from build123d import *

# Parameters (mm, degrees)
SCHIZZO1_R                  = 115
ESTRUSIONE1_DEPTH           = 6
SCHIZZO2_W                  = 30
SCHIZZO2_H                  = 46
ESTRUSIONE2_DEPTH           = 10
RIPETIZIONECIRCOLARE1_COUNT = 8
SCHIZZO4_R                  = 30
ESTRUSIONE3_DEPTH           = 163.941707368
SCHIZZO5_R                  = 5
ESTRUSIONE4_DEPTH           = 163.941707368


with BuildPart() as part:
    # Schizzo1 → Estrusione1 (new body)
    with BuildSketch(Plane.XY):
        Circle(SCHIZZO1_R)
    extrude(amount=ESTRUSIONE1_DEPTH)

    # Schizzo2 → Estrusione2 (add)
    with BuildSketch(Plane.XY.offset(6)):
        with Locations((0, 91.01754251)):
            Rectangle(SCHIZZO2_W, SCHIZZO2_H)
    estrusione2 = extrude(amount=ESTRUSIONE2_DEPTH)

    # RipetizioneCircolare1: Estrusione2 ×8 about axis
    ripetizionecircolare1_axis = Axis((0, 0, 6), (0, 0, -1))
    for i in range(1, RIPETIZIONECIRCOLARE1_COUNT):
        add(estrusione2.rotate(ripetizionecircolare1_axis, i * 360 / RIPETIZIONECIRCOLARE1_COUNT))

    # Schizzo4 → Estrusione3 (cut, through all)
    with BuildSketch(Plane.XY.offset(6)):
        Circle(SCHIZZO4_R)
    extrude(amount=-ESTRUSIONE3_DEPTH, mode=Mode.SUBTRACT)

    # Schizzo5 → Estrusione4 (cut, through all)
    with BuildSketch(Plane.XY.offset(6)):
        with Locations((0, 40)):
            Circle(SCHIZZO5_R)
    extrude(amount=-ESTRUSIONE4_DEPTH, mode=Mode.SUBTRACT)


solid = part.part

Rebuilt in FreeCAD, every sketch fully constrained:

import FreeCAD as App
import Part
import Sketcher


def add_polygon(sketch, points):
    """Adds a closed chain of lines whose ends are joined by coincident constraints."""
    first, n = sketch.GeometryCount, len(points)
    for a, b in zip(points, points[1:] + points[:1]):
        sketch.addGeometry(Part.LineSegment(App.Vector(*a, 0), App.Vector(*b, 0)), False)
    for i in range(n):
        sketch.addConstraint(Sketcher.Constraint("Coincident", first + i, 2, first + (i + 1) % n, 1))

doc = App.newDocument("Part")
params = doc.addObject("Spreadsheet::Sheet", "Params")
for row, (alias, value) in enumerate([
    ("sketch1_diameter", "230 mm"),
    ("pad1_length", "6 mm"),
    ("sketch2_width", "30 mm"),
    ("sketch2_height", "46 mm"),
    ("pad2_length", "10 mm"),
    ("sketch3_diameter", "60 mm"),
    ("sketch4_diameter", "10 mm"),
], start=1):
    params.set(f"A{row}", alias)
    params.set(f"B{row}", "=" + value)
    params.setAlias(f"B{row}", alias)

body = doc.addObject("PartDesign::Body", "Body")

# Sketch on XY plane
sketch1 = doc.addObject("Sketcher::SketchObject", "Sketch")
body.addObject(sketch1)
sketch1.AttachmentSupport = (doc.XY_Plane, [""])
sketch1.MapMode = "FlatFace"
sketch1.addGeometry(Part.Circle(App.Vector(0, 0, 0), App.Vector(0, 0, 1), 115), False)
sketch1.addConstraint(Sketcher.Constraint("Coincident", 0, 3, -1, 1))
sketch1.addConstraint(Sketcher.Constraint("Diameter", 0, 230.0))
sketch1.setExpression("Constraints[1]", "Params.sketch1_diameter")
pad1 = doc.addObject("PartDesign::Pad", "Pad")
body.addObject(pad1)
pad1.Profile = sketch1
pad1.setExpression("Length", "Params.pad1_length")

# Sketch on XY plane
sketch2 = doc.addObject("Sketcher::SketchObject", "Sketch001")
body.addObject(sketch2)
sketch2.AttachmentSupport = (doc.XY_Plane, [""])
sketch2.MapMode = "FlatFace"
sketch2.AttachmentOffset = App.Placement(App.Vector(0, 0, 6), App.Rotation())
add_polygon(sketch2, [(-15, 114), (-15, 68), (15, 68), (15, 114)])  # lines 0-3
sketch2.addConstraint(Sketcher.Constraint("Vertical", 0))
sketch2.addConstraint(Sketcher.Constraint("Horizontal", 1))
sketch2.addConstraint(Sketcher.Constraint("Vertical", 2))
sketch2.addConstraint(Sketcher.Constraint("Horizontal", 3))
sketch2.addConstraint(Sketcher.Constraint("DistanceX", 1, 1, 1, 2, 30.0))
sketch2.addConstraint(Sketcher.Constraint("DistanceY", 0, 2, 0, 1, 46.0))
sketch2.addConstraint(Sketcher.Constraint("DistanceX", 0, 2, -1, 1, 15.0))
sketch2.addConstraint(Sketcher.Constraint("DistanceY", -1, 1, 0, 2, 68.017543))
sketch2.setExpression("Constraints[8]", "Params.sketch2_width")
sketch2.setExpression("Constraints[9]", "Params.sketch2_height")
pad2 = doc.addObject("PartDesign::Pad", "Pad001")
body.addObject(pad2)
pad2.Profile = sketch2
pad2.setExpression("Length", "Params.pad2_length")
doc.recompute()

polarpattern = doc.addObject("PartDesign::PolarPattern", "PolarPattern")
body.addObject(polarpattern)
polarpattern.Originals = [pad2]
polarpattern.Axis = (doc.Z_Axis, [""])
polarpattern.Angle = 360
polarpattern.Occurrences = 8
body.Tip = polarpattern

# Sketch on XY plane
sketch3 = doc.addObject("Sketcher::SketchObject", "Sketch002")
body.addObject(sketch3)
sketch3.AttachmentSupport = (doc.XY_Plane, [""])
sketch3.MapMode = "FlatFace"
sketch3.AttachmentOffset = App.Placement(App.Vector(0, 0, 6), App.Rotation())
sketch3.addGeometry(Part.Circle(App.Vector(0, 0, 0), App.Vector(0, 0, 1), 30), False)
sketch3.addConstraint(Sketcher.Constraint("Coincident", 0, 3, -1, 1))
sketch3.addConstraint(Sketcher.Constraint("Diameter", 0, 60.0))
sketch3.setExpression("Constraints[1]", "Params.sketch3_diameter")
pocket1 = doc.addObject("PartDesign::Pocket", "Pocket")
body.addObject(pocket1)
pocket1.Profile = sketch3
pocket1.Type = "ThroughAll"

# Sketch on XY plane
sketch4 = doc.addObject("Sketcher::SketchObject", "Sketch003")
body.addObject(sketch4)
sketch4.AttachmentSupport = (doc.XY_Plane, [""])
sketch4.MapMode = "FlatFace"
sketch4.AttachmentOffset = App.Placement(App.Vector(0, 0, 6), App.Rotation())
sketch4.addGeometry(Part.Circle(App.Vector(0, 40, 0), App.Vector(0, 0, 1), 5), False)
sketch4.addConstraint(Sketcher.Constraint("PointOnObject", 0, 3, -2))
sketch4.addConstraint(Sketcher.Constraint("Diameter", 0, 10.0))
sketch4.addConstraint(Sketcher.Constraint("DistanceY", -1, 1, 0, 3, 40.0))
sketch4.setExpression("Constraints[1]", "Params.sketch4_diameter")
pocket2 = doc.addObject("PartDesign::Pocket", "Pocket001")
body.addObject(pocket2)
pocket2.Profile = sketch4
pocket2.Type = "ThroughAll"

doc.recompute()
